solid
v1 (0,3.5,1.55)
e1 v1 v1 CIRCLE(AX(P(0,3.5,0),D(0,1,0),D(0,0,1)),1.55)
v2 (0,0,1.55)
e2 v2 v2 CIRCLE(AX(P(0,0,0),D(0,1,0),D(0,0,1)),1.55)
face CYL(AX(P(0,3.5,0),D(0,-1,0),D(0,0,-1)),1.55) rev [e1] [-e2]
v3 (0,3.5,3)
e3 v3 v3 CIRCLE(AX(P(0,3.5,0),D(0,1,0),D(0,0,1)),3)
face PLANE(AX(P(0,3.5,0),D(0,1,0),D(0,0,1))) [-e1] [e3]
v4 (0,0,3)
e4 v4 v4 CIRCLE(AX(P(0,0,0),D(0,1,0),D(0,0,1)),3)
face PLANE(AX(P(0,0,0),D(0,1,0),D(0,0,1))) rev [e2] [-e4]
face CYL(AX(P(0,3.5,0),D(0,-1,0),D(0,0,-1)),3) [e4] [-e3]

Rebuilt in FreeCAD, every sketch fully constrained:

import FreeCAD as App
import Part
import Sketcher

V = App.Vector
Q = App.Units.Quantity

doc = App.newDocument("Part")
body = doc.addObject("PartDesign::Body", "Body")

# Sketch on XZ plane
sketch1 = doc.addObject("Sketcher::SketchObject", "Sketch")
body.addObject(sketch1)
sketch1.AttachmentSupport = (doc.XZ_Plane, [""])
sketch1.MapMode = "FlatFace"
sketch1.addGeometry([
    Part.Circle(V(0, 0, 0), V(0, 0, 1), 3),
    Part.Circle(V(0, 0, 0), V(0, 0, 1), 1.6),
], False)
sketch1.addConstraint([
    Sketcher.Constraint("Coincident", 0, 3, -1, 1),
    Sketcher.Constraint("Coincident", 1, 3, -1, 1),
    Sketcher.Constraint("Diameter", 0, Q("6 mm")),
    Sketcher.Constraint("Diameter", 1, Q("3.1 mm")),
])
pad1 = doc.addObject("PartDesign::Pad", "Pad")
body.addObject(pad1)
pad1.Profile = sketch1
pad1.Length = 3.5
pad1.Reversed = True

doc.recompute()
